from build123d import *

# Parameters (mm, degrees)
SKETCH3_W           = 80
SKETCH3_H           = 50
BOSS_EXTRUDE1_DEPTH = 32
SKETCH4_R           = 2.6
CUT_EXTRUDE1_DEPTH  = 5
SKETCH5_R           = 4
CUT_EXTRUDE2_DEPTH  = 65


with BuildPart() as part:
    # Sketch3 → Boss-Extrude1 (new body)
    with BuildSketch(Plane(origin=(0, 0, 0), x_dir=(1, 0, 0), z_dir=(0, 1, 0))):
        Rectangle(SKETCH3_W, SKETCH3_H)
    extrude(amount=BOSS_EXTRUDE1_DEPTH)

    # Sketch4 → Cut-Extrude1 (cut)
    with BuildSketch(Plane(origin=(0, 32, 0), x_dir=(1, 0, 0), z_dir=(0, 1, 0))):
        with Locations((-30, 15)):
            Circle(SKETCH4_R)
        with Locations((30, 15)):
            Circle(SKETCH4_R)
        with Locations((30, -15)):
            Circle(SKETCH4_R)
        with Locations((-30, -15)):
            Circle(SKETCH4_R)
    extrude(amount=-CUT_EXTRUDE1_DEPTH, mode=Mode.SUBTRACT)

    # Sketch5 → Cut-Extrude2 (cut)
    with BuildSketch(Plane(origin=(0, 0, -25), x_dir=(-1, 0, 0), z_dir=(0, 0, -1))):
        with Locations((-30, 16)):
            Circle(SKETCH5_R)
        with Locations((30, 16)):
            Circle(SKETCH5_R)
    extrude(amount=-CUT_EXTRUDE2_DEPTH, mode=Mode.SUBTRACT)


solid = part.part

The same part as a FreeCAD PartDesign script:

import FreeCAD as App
import Part
import Sketcher
Q = App.Units.Quantity

doc = App.newDocument("Part")
body = doc.addObject("PartDesign::Body", "Body")

sketch1 = body.newObject("Sketcher::SketchObject", "Sketch")
sketch1.AttachmentSupport = (doc.getObject("XZ_Plane"), [""])
sketch1.MapMode = "FlatFace"
sketch1.addGeometry([
    Part.LineSegment(App.Vector(-40, -25, 0), App.Vector(-40, 25, 0)),
    Part.LineSegment(App.Vector(-40, 25, 0), App.Vector(40, 25, 0)),
    Part.LineSegment(App.Vector(40, 25, 0), App.Vector(40, -25, 0)),
    Part.LineSegment(App.Vector(40, -25, 0), App.Vector(-40, -25, 0)),
], False)
sketch1.addConstraint([
    Sketcher.Constraint("Coincident", 0, 2, 1, 1),
    Sketcher.Constraint("Coincident", 1, 2, 2, 1),
    Sketcher.Constraint("Coincident", 2, 2, 3, 1),
    Sketcher.Constraint("Coincident", 3, 2, 0, 1),
    Sketcher.Constraint("Vertical", 0),
    Sketcher.Constraint("Horizontal", 1),
    Sketcher.Constraint("Vertical", 2),
    Sketcher.Constraint("Horizontal", 3),
    Sketcher.Constraint("Symmetric", 0, 2, 2, 2, -1, 1),
    Sketcher.Constraint("DistanceX", 1, 1, 1, 2, Q("80 mm")),
    Sketcher.Constraint("DistanceY", 0, 1, 0, 2, Q("50 mm")),
])
pad1 = body.newObject("PartDesign::Pad", "Pad")
pad1.Profile = sketch1
pad1.Length = 32
pad1.Reversed = True

sketch2 = body.newObject("Sketcher::SketchObject", "Sketch001")
sketch2.AttachmentSupport = (doc.getObject("XZ_Plane"), [""])
sketch2.MapMode = "FlatFace"
sketch2.AttachmentOffset = App.Placement(App.Vector(0, 0, -32), App.Rotation())
sketch2.addGeometry([
    Part.Circle(App.Vector(-30, -15, 0), App.Vector(0, 0, 1), 2.6),
    Part.Circle(App.Vector(30, -15, 0), App.Vector(0, 0, 1), 2.6),
    Part.Circle(App.Vector(30, 15, 0), App.Vector(0, 0, 1), 2.6),
    Part.Circle(App.Vector(-30, 15, 0), App.Vector(0, 0, 1), 2.6),
], False)
sketch2.addConstraint([
    Sketcher.Constraint("Equal", 0, 1),
    Sketcher.Constraint("Equal", 1, 2),
    Sketcher.Constraint("Equal", 2, 3),
    Sketcher.Constraint("Symmetric", 0, 3, 2, 3, -1, 1),
    Sketcher.Constraint("Symmetric", 1, 3, 3, 3, -1, 1),
    Sketcher.Constraint("Symmetric", 0, 3, 1, 3, -2),
    Sketcher.Constraint("Diameter", 0, Q("5.2 mm")),
    Sketcher.Constraint("DistanceX", 0, 3, -1, 1, Q("30 mm")),
    Sketcher.Constraint("DistanceY", 0, 3, -1, 1, Q("15 mm")),
])
pocket1 = body.newObject("PartDesign::Pocket", "Pocket")
pocket1.Profile = sketch2
pocket1.Length = 5
pocket1.Reversed = True

sketch3 = body.newObject("Sketcher::SketchObject", "Sketch002")
sketch3.AttachmentSupport = (doc.getObject("XY_Plane"), [""])
sketch3.MapMode = "FlatFace"
sketch3.AttachmentOffset = App.Placement(App.Vector(0, 0, -25), App.Rotation())
sketch3.addGeometry([
    Part.Circle(App.Vector(30, 16, 0), App.Vector(0, 0, 1), 4),
    Part.Circle(App.Vector(-30, 16, 0), App.Vector(0, 0, 1), 4),
], False)
sketch3.addConstraint([
    Sketcher.Constraint("Equal", 0, 1),
    Sketcher.Constraint("Symmetric", 0, 3, 1, 3, -2),
    Sketcher.Constraint("Diameter", 0, Q("8 mm")),
    Sketcher.Constraint("DistanceX", -1, 1, 0, 3, Q("30 mm")),
    Sketcher.Constraint("DistanceY", -1, 1, 0, 3, Q("16 mm")),
])
pocket2 = body.newObject("PartDesign::Pocket", "Pocket001")
pocket2.Profile = sketch3
pocket2.Length = 65
pocket2.Reversed = True

doc.recompute()
